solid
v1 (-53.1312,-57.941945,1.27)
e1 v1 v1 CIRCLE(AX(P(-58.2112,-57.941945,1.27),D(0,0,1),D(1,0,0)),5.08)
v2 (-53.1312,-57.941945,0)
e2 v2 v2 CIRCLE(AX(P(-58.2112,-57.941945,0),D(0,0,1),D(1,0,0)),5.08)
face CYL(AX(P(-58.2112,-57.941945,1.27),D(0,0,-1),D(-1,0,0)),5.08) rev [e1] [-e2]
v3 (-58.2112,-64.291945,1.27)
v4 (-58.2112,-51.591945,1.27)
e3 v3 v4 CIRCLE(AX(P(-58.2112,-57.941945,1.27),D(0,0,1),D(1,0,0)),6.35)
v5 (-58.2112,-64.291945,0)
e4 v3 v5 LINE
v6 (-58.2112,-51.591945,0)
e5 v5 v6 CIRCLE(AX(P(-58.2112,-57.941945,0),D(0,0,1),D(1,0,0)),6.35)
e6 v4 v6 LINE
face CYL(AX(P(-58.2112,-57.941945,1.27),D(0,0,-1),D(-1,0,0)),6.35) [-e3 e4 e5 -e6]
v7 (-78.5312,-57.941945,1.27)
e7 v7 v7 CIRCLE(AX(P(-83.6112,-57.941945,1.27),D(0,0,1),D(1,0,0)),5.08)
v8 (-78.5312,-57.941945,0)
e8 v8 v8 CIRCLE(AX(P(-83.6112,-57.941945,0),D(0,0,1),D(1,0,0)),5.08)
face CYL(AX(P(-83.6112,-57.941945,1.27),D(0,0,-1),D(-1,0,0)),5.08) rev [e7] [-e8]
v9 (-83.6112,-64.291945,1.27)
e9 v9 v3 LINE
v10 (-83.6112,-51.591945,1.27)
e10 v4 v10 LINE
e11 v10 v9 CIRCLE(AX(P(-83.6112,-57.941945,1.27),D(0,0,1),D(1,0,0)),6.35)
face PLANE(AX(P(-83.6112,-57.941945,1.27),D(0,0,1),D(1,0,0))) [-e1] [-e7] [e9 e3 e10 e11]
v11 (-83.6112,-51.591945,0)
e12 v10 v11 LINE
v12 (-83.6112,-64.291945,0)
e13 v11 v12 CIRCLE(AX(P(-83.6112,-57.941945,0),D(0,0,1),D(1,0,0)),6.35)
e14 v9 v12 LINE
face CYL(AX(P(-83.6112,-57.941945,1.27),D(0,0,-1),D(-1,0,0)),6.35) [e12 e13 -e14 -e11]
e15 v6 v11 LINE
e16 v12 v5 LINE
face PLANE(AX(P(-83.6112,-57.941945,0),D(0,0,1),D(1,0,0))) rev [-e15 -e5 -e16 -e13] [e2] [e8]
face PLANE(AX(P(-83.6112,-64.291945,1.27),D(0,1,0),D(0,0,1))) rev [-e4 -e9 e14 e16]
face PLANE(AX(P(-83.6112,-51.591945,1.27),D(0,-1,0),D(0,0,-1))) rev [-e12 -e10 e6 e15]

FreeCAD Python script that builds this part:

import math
import FreeCAD as App
import Part
import Sketcher
from FreeCAD import Vector
Q = App.Units.Quantity

doc = App.newDocument("Part")
body = doc.addObject("PartDesign::Body", "Body")

# Sketch on XY plane
sketch1 = body.newObject("Sketcher::SketchObject", "Sketch")
sketch1.AttachmentSupport = (doc.getObject("XY_Plane"), [""])
sketch1.MapMode = "FlatFace"
sketch1.addGeometry(Part.LineSegment(Vector(-58, -52, 0), Vector(-84, -52, 0)), False)
sketch1.addGeometry(Part.ArcOfCircle(Part.Circle(Vector(-84, -58, 0), Vector(0, 0, 1), 6), math.radians(90), math.radians(270)), False)
sketch1.addGeometry(Part.LineSegment(Vector(-84, -64, 0), Vector(-58, -64, 0)), False)
sketch1.addGeometry(Part.ArcOfCircle(Part.Circle(Vector(-58, -58, 0), Vector(0, 0, 1), 6), math.radians(-90), math.radians(90)), False)
sketch1.addGeometry(Part.Circle(Vector(-58, -58, 0), Vector(0, 0, 1), 5), False)
sketch1.addGeometry(Part.Circle(Vector(-84, -58, 0), Vector(0, 0, 1), 5), False)
sketch1.addConstraint(Sketcher.Constraint("Tangent", 0, 2, 1, 1))
sketch1.addConstraint(Sketcher.Constraint("Tangent", 1, 2, 2, 1))
sketch1.addConstraint(Sketcher.Constraint("Tangent", 2, 2, 3, 1))
sketch1.addConstraint(Sketcher.Constraint("Tangent", 3, 2, 0, 1))
sketch1.addConstraint(Sketcher.Constraint("Horizontal", 0))
sketch1.addConstraint(Sketcher.Constraint("Horizontal", 2))
sketch1.addConstraint(Sketcher.Constraint("Coincident", 4, 3, 3, 3))
sketch1.addConstraint(Sketcher.Constraint("Coincident", 5, 3, 1, 3))
sketch1.addConstraint(Sketcher.Constraint("Equal", 4, 5))
sketch1.addConstraint(Sketcher.Constraint("Diameter", 4, Q("0.4 in")))
sketch1.addConstraint(Sketcher.Constraint("DistanceX", 0, 2, 0, 1, Q("1 in")))
sketch1.addConstraint(Sketcher.Constraint("Radius", 1, Q("0.25 in")))
sketch1.addConstraint(Sketcher.Constraint("DistanceX", 1, 3, -1, 1, 83.6112))
sketch1.addConstraint(Sketcher.Constraint("DistanceY", 1, 3, -1, 1, 57.941945))
pad1 = body.newObject("PartDesign::Pad", "Pad")
pad1.Profile = sketch1
pad1.Length = Q("0.05 in")

doc.recompute()
